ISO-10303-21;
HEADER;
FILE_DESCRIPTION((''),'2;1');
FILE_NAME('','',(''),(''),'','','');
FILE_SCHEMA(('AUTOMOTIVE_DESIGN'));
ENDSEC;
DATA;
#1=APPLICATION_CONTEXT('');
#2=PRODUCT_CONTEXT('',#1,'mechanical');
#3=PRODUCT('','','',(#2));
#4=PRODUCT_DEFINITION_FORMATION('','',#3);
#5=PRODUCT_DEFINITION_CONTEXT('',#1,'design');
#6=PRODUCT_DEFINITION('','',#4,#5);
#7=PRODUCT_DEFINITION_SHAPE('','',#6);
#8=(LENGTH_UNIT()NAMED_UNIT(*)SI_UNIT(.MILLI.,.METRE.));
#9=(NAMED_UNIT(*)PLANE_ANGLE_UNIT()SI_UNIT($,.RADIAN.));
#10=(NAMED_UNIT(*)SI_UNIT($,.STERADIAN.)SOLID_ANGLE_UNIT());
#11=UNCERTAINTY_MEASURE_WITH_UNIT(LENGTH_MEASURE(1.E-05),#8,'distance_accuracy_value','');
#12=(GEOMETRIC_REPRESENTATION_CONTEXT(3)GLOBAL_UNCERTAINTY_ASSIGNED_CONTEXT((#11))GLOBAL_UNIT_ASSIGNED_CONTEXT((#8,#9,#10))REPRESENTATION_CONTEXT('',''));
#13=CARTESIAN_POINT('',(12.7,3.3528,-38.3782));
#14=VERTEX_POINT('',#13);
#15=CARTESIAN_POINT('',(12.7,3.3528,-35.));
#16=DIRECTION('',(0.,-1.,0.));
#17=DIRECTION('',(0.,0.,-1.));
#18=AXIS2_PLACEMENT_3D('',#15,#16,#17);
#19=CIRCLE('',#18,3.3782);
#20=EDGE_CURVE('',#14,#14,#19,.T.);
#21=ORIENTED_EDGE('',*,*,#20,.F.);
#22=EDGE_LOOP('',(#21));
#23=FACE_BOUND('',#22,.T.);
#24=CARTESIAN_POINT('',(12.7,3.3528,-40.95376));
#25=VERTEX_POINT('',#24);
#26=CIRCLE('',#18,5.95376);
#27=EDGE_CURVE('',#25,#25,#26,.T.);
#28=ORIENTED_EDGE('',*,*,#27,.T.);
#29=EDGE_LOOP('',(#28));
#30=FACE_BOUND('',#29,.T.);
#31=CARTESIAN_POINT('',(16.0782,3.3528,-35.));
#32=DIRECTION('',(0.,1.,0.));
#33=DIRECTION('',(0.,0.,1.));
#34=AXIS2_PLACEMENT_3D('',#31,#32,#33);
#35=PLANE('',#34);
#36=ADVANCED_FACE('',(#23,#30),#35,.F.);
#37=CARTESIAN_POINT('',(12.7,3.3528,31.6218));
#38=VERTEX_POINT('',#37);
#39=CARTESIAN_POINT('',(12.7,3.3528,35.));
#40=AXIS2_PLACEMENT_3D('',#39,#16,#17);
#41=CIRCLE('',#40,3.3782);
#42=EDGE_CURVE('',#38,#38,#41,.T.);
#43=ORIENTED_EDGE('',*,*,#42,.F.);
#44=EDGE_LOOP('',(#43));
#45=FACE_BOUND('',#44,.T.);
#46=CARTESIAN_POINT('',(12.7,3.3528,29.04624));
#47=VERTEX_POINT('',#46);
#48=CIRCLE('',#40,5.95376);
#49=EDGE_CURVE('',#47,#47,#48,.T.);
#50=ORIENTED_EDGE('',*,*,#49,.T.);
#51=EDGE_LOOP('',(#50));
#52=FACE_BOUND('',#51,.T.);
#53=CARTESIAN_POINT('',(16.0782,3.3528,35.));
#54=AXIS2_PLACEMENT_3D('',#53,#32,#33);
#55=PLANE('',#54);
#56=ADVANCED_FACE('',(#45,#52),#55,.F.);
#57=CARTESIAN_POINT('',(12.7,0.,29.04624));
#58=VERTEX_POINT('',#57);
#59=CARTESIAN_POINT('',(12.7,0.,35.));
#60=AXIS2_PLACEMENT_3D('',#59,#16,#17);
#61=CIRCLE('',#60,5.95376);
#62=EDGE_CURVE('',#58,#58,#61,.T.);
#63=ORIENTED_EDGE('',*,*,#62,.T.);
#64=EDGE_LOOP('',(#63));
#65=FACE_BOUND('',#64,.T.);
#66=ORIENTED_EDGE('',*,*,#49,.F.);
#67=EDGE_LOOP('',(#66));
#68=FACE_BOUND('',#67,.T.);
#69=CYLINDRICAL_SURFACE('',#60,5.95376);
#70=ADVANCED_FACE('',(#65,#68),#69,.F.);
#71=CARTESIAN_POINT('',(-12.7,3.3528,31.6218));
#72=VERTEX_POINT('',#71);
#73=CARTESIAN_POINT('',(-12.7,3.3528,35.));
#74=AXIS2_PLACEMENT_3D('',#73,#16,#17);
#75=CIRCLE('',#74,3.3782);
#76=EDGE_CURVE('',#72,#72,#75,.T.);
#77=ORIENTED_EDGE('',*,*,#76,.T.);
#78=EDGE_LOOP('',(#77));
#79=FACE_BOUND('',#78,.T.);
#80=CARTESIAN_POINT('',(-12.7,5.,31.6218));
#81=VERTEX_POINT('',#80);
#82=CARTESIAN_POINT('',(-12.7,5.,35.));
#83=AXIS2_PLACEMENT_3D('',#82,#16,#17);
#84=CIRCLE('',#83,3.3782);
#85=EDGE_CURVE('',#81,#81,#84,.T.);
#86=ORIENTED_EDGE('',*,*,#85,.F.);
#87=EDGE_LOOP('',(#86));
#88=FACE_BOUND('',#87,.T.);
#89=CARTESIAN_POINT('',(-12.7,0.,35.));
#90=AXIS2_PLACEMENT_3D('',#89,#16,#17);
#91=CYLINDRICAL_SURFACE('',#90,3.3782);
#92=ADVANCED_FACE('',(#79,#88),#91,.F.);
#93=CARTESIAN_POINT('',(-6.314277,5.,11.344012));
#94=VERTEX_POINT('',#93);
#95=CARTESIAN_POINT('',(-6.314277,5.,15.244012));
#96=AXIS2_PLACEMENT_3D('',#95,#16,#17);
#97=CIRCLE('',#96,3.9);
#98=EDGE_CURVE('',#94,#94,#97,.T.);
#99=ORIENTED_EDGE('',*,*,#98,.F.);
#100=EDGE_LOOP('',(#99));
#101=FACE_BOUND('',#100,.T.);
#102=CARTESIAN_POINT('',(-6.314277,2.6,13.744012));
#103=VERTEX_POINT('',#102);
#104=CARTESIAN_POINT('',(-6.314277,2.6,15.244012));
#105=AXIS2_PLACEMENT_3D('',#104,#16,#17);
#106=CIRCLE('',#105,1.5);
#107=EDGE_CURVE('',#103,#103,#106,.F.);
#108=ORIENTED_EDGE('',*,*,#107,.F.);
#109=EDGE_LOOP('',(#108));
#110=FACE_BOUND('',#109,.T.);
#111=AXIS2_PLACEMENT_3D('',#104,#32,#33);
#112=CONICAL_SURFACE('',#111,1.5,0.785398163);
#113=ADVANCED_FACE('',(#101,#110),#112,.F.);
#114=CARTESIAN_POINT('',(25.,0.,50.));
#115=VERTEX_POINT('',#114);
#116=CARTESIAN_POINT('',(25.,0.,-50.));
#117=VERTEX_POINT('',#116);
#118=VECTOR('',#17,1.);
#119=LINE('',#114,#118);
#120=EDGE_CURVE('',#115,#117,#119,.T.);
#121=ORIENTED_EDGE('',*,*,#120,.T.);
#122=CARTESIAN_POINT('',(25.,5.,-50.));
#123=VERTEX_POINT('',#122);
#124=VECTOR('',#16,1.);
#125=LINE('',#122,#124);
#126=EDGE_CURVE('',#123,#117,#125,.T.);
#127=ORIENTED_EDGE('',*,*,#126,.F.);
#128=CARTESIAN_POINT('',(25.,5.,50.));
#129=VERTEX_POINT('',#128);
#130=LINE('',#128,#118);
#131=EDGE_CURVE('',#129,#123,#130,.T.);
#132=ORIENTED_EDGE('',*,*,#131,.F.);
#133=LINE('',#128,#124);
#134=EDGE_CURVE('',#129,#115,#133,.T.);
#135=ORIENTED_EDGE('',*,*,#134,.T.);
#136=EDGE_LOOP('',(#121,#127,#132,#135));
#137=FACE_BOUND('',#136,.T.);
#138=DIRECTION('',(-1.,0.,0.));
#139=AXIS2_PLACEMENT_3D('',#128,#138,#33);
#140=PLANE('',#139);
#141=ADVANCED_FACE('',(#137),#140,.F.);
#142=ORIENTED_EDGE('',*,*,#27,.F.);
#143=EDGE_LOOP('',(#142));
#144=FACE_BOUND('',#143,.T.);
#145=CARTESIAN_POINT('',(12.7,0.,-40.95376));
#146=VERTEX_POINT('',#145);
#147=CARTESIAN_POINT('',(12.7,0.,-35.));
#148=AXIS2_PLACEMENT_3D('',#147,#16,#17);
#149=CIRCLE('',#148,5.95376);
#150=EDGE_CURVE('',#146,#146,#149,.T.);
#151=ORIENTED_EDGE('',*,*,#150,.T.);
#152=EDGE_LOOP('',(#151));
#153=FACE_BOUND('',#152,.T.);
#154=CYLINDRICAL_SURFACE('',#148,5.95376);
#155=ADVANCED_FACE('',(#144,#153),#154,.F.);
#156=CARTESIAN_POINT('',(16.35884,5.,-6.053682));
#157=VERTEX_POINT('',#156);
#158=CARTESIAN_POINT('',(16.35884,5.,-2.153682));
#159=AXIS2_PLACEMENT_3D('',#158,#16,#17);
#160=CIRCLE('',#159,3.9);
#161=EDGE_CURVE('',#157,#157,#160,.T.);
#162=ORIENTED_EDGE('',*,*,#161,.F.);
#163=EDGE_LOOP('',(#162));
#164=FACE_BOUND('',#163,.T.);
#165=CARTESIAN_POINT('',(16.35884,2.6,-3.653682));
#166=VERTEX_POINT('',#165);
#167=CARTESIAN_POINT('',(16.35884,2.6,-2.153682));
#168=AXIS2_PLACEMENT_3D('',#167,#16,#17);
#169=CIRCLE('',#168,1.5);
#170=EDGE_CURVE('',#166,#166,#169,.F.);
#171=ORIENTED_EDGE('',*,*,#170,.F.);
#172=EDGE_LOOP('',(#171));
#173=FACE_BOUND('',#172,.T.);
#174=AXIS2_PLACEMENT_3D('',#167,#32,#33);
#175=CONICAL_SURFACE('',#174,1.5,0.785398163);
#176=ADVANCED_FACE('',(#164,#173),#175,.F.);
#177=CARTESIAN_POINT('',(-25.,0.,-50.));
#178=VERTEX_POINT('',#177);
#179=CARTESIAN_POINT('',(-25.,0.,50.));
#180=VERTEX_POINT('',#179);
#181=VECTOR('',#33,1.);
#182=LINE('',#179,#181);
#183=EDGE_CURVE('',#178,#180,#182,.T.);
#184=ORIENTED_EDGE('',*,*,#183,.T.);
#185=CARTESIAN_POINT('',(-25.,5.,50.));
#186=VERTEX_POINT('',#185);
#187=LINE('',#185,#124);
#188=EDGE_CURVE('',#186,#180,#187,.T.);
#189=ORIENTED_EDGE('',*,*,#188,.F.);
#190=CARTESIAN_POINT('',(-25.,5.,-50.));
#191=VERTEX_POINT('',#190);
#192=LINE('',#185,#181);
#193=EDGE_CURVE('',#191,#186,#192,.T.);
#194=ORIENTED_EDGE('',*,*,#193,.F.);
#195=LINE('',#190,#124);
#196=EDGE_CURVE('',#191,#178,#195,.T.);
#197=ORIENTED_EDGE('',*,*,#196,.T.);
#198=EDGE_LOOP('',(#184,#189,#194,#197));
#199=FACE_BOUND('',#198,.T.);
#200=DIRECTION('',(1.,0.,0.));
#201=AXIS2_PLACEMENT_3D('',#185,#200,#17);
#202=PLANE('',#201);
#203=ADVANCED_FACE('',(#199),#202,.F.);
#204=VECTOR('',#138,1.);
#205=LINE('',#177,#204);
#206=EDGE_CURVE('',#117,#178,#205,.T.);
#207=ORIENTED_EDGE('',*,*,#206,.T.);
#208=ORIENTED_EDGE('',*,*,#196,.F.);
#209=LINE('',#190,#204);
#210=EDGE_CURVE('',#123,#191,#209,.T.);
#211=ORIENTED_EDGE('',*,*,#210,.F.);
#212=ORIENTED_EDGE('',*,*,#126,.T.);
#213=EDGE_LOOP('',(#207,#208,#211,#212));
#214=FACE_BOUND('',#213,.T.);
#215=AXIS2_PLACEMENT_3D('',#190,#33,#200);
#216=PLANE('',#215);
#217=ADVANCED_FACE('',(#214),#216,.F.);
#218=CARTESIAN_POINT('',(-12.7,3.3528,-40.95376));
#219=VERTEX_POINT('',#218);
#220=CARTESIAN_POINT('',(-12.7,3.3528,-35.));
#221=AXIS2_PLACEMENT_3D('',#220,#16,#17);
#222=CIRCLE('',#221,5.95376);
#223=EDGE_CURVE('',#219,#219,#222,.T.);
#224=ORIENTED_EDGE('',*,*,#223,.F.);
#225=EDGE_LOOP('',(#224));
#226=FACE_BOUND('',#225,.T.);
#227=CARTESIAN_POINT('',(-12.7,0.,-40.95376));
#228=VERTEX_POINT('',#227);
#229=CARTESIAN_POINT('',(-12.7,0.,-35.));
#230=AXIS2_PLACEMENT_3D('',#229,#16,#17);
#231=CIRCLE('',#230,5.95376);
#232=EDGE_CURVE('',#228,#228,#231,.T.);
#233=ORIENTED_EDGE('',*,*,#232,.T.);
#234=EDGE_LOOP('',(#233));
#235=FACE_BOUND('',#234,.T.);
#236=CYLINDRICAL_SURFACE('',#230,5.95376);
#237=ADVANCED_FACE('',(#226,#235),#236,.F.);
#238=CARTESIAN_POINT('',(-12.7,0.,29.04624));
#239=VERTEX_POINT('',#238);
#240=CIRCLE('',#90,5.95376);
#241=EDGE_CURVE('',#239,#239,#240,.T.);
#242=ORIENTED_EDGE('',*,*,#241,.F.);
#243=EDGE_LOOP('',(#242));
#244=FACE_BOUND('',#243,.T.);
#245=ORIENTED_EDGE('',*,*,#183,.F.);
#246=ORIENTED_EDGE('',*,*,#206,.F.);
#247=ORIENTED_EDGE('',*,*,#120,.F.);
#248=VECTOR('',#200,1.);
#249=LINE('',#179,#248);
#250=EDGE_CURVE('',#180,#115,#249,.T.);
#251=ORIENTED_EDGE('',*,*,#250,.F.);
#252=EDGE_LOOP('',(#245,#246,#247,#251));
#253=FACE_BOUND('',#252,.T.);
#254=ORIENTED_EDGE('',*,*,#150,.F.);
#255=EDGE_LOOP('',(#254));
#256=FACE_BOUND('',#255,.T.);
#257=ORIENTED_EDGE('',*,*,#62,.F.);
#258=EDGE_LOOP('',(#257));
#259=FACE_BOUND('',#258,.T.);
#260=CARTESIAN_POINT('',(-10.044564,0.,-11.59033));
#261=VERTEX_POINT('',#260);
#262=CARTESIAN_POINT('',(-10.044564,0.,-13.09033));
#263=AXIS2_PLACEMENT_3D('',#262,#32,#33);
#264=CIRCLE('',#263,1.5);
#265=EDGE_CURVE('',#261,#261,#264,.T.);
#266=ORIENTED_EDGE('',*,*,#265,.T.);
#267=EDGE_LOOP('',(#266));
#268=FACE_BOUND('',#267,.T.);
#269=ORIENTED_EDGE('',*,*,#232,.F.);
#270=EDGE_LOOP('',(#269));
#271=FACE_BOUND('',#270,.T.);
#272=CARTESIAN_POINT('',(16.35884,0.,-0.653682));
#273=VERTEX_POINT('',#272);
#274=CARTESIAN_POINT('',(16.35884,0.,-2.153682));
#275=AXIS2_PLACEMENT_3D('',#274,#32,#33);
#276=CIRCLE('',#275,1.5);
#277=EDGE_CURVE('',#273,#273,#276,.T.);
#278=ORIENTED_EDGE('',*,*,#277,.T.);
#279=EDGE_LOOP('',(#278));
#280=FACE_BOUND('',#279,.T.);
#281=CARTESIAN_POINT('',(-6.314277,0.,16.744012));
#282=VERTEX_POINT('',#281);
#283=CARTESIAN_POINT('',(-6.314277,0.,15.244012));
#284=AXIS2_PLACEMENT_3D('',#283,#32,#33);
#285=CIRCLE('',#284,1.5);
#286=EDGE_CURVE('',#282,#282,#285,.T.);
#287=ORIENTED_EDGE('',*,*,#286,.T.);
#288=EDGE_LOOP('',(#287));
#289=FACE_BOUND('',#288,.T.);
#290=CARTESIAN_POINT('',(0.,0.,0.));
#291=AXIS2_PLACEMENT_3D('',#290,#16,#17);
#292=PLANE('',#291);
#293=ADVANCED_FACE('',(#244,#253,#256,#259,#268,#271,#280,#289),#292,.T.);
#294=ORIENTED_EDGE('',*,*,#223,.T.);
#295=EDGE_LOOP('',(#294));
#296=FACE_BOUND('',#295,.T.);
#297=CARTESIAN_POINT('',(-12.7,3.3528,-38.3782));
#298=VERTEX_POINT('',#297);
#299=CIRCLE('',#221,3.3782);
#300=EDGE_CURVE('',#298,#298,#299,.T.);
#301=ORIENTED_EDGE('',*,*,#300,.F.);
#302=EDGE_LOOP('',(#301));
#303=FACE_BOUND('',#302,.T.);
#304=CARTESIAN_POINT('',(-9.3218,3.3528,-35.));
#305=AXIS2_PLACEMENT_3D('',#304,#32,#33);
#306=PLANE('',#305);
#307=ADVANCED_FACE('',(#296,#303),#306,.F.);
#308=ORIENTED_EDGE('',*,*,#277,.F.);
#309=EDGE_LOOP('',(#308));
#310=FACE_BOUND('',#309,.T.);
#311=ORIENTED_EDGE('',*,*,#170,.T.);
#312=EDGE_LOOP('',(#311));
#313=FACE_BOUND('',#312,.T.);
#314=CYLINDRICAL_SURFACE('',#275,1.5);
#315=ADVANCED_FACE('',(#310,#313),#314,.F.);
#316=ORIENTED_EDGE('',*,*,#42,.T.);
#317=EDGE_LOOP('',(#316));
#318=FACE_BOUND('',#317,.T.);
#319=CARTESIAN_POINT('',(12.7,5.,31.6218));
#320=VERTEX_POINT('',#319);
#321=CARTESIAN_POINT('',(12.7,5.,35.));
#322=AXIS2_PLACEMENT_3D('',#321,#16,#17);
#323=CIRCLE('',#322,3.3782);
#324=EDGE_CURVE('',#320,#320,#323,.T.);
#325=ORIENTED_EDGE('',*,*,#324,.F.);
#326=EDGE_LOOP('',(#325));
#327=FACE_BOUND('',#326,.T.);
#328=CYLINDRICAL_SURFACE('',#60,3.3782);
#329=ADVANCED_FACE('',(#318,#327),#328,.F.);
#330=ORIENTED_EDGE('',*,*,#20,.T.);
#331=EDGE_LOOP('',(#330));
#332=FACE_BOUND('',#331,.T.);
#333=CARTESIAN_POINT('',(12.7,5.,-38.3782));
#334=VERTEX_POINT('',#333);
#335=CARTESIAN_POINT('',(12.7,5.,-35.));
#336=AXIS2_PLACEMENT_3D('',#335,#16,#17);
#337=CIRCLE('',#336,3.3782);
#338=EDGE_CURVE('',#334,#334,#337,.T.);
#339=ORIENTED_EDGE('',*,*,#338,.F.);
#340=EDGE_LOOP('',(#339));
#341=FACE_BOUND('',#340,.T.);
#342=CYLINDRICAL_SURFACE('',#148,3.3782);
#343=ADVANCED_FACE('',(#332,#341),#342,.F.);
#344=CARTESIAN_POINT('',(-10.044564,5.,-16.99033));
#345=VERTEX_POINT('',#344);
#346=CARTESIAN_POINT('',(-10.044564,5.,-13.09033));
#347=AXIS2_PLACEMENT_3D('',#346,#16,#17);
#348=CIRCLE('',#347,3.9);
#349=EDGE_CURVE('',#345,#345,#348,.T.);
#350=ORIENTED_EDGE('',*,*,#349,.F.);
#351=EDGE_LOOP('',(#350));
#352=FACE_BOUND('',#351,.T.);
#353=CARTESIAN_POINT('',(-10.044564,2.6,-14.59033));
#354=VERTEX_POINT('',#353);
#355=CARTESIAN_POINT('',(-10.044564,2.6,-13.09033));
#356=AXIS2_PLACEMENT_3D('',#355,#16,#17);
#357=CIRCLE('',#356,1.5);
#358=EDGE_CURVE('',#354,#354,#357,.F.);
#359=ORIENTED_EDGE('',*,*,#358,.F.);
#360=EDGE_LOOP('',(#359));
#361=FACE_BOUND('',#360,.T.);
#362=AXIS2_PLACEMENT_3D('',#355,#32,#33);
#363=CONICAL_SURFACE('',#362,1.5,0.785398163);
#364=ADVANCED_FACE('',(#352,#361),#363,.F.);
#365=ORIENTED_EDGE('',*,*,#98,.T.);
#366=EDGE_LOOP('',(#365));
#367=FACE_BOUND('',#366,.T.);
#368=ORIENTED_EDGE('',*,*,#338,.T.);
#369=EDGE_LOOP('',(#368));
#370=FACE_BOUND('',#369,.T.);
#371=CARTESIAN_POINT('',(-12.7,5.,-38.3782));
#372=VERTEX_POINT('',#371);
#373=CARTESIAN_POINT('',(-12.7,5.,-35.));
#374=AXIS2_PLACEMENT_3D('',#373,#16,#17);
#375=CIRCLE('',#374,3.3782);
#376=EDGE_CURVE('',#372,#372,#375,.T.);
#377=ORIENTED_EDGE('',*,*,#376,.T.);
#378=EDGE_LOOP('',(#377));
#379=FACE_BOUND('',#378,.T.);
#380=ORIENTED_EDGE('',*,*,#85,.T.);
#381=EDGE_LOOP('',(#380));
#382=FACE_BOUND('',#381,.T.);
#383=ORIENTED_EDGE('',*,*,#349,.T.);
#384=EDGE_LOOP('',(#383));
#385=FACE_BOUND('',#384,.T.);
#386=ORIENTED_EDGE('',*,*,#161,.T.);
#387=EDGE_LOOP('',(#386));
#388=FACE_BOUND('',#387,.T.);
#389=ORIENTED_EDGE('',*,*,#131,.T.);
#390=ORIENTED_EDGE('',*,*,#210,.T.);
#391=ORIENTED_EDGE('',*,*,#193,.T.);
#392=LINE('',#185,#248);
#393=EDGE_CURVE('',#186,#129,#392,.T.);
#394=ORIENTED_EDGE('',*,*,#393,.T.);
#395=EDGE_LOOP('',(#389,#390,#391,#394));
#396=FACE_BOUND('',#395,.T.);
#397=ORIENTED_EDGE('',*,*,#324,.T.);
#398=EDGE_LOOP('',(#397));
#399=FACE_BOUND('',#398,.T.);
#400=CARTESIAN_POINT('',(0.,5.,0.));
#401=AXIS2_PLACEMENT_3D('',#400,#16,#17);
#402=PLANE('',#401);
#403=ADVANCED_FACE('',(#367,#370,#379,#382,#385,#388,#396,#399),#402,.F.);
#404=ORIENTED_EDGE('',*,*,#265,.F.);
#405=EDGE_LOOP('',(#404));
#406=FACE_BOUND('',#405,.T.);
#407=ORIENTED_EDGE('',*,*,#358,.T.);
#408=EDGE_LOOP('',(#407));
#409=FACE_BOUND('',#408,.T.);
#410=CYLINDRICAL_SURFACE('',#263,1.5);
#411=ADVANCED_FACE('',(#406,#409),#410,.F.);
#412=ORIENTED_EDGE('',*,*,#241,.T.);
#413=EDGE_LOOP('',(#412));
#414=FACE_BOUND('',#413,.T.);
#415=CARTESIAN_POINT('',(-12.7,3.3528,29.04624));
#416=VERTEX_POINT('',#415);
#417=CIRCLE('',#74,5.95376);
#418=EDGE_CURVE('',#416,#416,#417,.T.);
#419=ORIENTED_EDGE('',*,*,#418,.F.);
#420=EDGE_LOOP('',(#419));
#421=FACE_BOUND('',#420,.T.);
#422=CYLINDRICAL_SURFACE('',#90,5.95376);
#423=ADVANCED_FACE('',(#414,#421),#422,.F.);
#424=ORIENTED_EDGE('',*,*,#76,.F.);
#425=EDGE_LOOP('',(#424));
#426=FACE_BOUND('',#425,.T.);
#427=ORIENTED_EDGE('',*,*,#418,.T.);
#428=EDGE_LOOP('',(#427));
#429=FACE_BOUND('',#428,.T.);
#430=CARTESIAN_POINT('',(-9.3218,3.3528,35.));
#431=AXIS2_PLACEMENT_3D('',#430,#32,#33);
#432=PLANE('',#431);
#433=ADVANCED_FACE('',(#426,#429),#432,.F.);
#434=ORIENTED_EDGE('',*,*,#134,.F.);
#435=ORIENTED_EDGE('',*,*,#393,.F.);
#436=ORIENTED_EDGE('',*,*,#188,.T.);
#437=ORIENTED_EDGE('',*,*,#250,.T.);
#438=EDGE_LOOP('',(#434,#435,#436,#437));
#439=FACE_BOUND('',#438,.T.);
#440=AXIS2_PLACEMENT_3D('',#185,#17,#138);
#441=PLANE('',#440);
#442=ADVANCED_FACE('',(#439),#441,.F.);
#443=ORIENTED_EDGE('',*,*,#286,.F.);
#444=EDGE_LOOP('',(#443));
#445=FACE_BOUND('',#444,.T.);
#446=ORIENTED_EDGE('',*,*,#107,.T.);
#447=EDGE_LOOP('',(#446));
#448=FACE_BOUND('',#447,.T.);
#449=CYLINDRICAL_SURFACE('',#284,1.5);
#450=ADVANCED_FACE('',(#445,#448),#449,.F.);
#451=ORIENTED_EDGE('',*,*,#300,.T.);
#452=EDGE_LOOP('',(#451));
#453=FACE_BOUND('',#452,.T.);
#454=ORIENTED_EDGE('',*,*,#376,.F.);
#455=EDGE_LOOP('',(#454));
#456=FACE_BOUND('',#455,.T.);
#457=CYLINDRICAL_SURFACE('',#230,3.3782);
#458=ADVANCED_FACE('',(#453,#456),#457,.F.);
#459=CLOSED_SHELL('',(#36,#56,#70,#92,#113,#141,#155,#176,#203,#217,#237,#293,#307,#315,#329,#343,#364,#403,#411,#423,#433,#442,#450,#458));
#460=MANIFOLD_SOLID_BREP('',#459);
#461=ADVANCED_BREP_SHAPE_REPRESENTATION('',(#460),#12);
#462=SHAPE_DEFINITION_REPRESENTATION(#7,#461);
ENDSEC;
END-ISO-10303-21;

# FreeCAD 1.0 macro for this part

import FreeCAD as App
import Part
import Sketcher
Q = App.Units.Quantity


def edges_at(feature, points):
    """Names of the edges that pass closest to the given points."""
    edges = feature.Shape.Edges
    near = lambda p: min(range(len(edges)), key=lambda i: edges[i].distToShape(Part.Vertex(*p))[0])
    return sorted({f"Edge{near(p) + 1}" for p in points})

doc = App.newDocument("Part")
body = doc.addObject("PartDesign::Body", "Body")

sketch1 = body.newObject("Sketcher::SketchObject", "Sketch")
sketch1.AttachmentSupport = (doc.getObject("XZ_Plane"), [""])
sketch1.MapMode = "FlatFace"
sketch1.addGeometry([
    Part.LineSegment(App.Vector(-25, -50, 0), App.Vector(-25, 50, 0)),
    Part.LineSegment(App.Vector(-25, 50, 0), App.Vector(25, 50, 0)),
    Part.LineSegment(App.Vector(25, 50, 0), App.Vector(25, -50, 0)),
    Part.LineSegment(App.Vector(25, -50, 0), App.Vector(-25, -50, 0)),
], False)
sketch1.addConstraint([
    Sketcher.Constraint("Coincident", 0, 2, 1, 1),
    Sketcher.Constraint("Coincident", 1, 2, 2, 1),
    Sketcher.Constraint("Coincident", 2, 2, 3, 1),
    Sketcher.Constraint("Coincident", 3, 2, 0, 1),
    Sketcher.Constraint("Vertical", 0),
    Sketcher.Constraint("Horizontal", 1),
    Sketcher.Constraint("Vertical", 2),
    Sketcher.Constraint("Horizontal", 3),
    Sketcher.Constraint("Symmetric", 0, 2, 2, 2, -1, 1),
    Sketcher.Constraint("DistanceX", 1, 1, 1, 2, Q("50 mm")),
    Sketcher.Constraint("DistanceY", 0, 1, 0, 2, Q("100 mm")),
])
pad1 = body.newObject("PartDesign::Pad", "Pad")
pad1.Profile = sketch1
pad1.Length = 5
pad1.Reversed = True

sketch2 = body.newObject("Sketcher::SketchObject", "Sketch001")
sketch2.AttachmentSupport = (doc.getObject("XZ_Plane"), [""])
sketch2.MapMode = "FlatFace"
sketch2.AttachmentOffset = App.Placement(App.Vector(0, 0, -5), App.Rotation())
sketch2.addGeometry([
    Part.Circle(App.Vector(-6.3, 15.2, 0), App.Vector(0, 0, 1), 1.5),
    Part.Circle(App.Vector(16.4, -2.2, 0), App.Vector(0, 0, 1), 1.5),
    Part.Circle(App.Vector(-10, -13.1, 0), App.Vector(0, 0, 1), 1.5),
], False)
sketch2.addConstraint([
    Sketcher.Constraint("Equal", 0, 1),
    Sketcher.Constraint("Equal", 1, 2),
    Sketcher.Constraint("Diameter", 0, Q("3 mm")),
    Sketcher.Constraint("DistanceX", -1, 1, 1, 3, Q("16.35884 mm")),
    Sketcher.Constraint("DistanceY", 2, 3, -1, 1, Q("13.09033 mm")),
    Sketcher.Constraint("DistanceX", 0, 3, -1, 1, Q("6.314277 mm")),
    Sketcher.Constraint("DistanceY", -1, 1, 0, 3, Q("15.244012 mm")),
    Sketcher.Constraint("DistanceY", 1, 3, -1, 1, Q("2.153682 mm")),
    Sketcher.Constraint("DistanceX", 2, 3, -1, 1, Q("10.044564 mm")),
])
pocket1 = body.newObject("PartDesign::Pocket", "Pocket")
pocket1.Profile = sketch2
pocket1.Length = 5
pocket1.Reversed = True
doc.recompute()

chamfer = body.newObject("PartDesign::Chamfer", "Chamfer")
chamfer.Base = (pocket1, edges_at(pocket1, [(-7.814, 5, 15.244), (14.859, 5, -2.154), (-11.545, 5, -13.09)]))
chamfer.Size = 2.4

sketch3 = body.newObject("Sketcher::SketchObject", "Sketch002")
sketch3.AttachmentSupport = (doc.getObject("XZ_Plane"), [""])
sketch3.MapMode = "FlatFace"
sketch3.addGeometry([
    Part.Circle(App.Vector(-12.7, 35, 0), App.Vector(0, 0, 1), 3.4),
    Part.Circle(App.Vector(12.7, 35, 0), App.Vector(0, 0, 1), 3.4),
    Part.Circle(App.Vector(12.7, -35, 0), App.Vector(0, 0, 1), 3.4),
    Part.Circle(App.Vector(-12.7, -35, 0), App.Vector(0, 0, 1), 3.4),
], False)
sketch3.addConstraint([
    Sketcher.Constraint("Equal", 0, 1),
    Sketcher.Constraint("Equal", 1, 2),
    Sketcher.Constraint("Equal", 2, 3),
    Sketcher.Constraint("Symmetric", 0, 3, 2, 3, -1, 1),
    Sketcher.Constraint("Symmetric", 1, 3, 3, 3, -1, 1),
    Sketcher.Constraint("Symmetric", 0, 3, 1, 3, -2),
    Sketcher.Constraint("DistanceY", -1, 1, 0, 3, Q("35 mm")),
    Sketcher.Constraint("Diameter", 0, Q("6.7564 mm")),
    Sketcher.Constraint("DistanceX", 0, 3, -1, 1, Q("12.7 mm")),
])
doc.recompute()
hole = body.newObject("PartDesign::Hole", "Hole")
hole.Profile = sketch3
hole.ThreadType = "None"
hole.Diameter = 6.7564
hole.DepthType = "ThroughAll"
hole.HoleCutType = "Counterbore"
hole.HoleCutDiameter = 11.90752
hole.HoleCutDepth = 3.3528

doc.recompute()
